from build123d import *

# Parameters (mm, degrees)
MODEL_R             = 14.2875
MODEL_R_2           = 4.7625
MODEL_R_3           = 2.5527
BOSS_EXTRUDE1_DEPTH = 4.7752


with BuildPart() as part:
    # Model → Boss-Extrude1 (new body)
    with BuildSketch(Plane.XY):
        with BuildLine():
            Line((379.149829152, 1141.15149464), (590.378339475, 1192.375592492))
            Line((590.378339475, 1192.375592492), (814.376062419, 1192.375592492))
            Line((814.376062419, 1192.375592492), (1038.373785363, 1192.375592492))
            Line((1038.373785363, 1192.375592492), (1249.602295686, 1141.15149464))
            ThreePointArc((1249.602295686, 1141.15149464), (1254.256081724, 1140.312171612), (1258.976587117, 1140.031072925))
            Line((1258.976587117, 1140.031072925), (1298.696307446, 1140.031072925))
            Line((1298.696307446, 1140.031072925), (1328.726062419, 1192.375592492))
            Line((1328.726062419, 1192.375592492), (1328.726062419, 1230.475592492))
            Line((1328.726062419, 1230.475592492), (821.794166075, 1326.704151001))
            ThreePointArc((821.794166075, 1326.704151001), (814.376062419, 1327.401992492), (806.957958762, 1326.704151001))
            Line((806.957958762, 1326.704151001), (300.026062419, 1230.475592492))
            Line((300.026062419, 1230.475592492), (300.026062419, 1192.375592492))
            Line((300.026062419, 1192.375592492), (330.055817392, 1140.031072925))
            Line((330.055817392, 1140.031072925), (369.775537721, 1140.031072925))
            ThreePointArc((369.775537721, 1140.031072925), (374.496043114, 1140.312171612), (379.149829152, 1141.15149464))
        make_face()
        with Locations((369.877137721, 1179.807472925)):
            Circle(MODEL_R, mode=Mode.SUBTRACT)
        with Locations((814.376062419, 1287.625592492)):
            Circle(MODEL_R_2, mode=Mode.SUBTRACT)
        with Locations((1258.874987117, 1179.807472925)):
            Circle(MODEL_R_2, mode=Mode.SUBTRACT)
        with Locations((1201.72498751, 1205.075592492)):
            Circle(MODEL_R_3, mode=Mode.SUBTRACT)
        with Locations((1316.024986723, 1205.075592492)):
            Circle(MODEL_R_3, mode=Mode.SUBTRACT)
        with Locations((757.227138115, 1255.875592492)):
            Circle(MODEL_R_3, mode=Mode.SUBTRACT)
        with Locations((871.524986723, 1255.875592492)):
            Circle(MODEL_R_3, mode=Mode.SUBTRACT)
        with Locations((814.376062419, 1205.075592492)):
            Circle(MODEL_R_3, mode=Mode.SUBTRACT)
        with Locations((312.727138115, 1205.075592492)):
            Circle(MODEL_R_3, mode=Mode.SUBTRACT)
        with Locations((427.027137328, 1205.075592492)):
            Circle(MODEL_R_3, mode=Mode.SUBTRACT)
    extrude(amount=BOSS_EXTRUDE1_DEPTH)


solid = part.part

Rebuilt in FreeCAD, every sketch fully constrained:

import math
import FreeCAD as App
import Part
import Sketcher
from FreeCAD import Vector
Q = App.Units.Quantity

doc = App.newDocument("Part")
body = doc.addObject("PartDesign::Body", "Body")

# Sketch on XY plane
sketch1 = doc.addObject("Sketcher::SketchObject", "Sketch")
body.addObject(sketch1)
sketch1.AttachmentSupport = (doc.XY_Plane, [""])
sketch1.MapMode = "FlatFace"
sketch1.addGeometry([
    Part.LineSegment(Vector(379.149829, 1141.151495, 0), Vector(590.378339, 1192.375592, 0)),  # 0
    Part.LineSegment(Vector(590.378339, 1192.375592, 0), Vector(1038.373785, 1192.375592, 0)),  # 1
    Part.LineSegment(Vector(1038.373785, 1192.375592, 0), Vector(1249.602296, 1141.151495, 0)),  # 2
    Part.ArcOfCircle(Part.Circle(Vector(1258.976587, 1179.807473, 0), Vector(0, 0, 1), 39.7764), math.radians(-103.631398), math.radians(-90)),  # 3
    Part.LineSegment(Vector(1258.976587, 1140.031073, 0), Vector(1298.696307, 1140.031073, 0)),  # 4
    Part.LineSegment(Vector(1298.696307, 1140.031073, 0), Vector(1328.726062, 1192.375592, 0)),  # 5
    Part.LineSegment(Vector(1328.726062, 1192.375592, 0), Vector(1328.726062, 1230.475592, 0)),  # 6
    Part.LineSegment(Vector(1328.726062, 1230.475592, 0), Vector(821.794166, 1326.704151, 0)),  # 7
    Part.ArcOfCircle(Part.Circle(Vector(814.376062, 1287.625592, 0), Vector(0, 0, 1), 39.7764), math.radians(79.251688), math.radians(100.748312)),  # 8
    Part.LineSegment(Vector(806.957959, 1326.704151, 0), Vector(300.026062, 1230.475592, 0)),  # 9
    Part.LineSegment(Vector(300.026062, 1230.475592, 0), Vector(300.026062, 1192.375592, 0)),  # 10
    Part.LineSegment(Vector(300.026062, 1192.375592, 0), Vector(330.055817, 1140.031073, 0)),  # 11
    Part.LineSegment(Vector(330.055817, 1140.031073, 0), Vector(369.775538, 1140.031073, 0)),  # 12
    Part.ArcOfCircle(Part.Circle(Vector(369.775538, 1179.807473, 0), Vector(0, 0, 1), 39.7764), math.radians(-90), math.radians(-76.368602)),  # 13
    Part.Circle(Vector(369.877138, 1179.807473, 0), Vector(0, 0, 1), 14.2875),  # 14
    Part.Circle(Vector(312.727138, 1205.075592, 0), Vector(0, 0, 1), 2.5527),  # 15
    Part.Circle(Vector(427.027137, 1205.075592, 0), Vector(0, 0, 1), 2.5527),  # 16
    Part.Circle(Vector(1258.874987, 1179.807473, 0), Vector(0, 0, 1), 4.7625),  # 17
    Part.Circle(Vector(814.376062, 1205.075592, 0), Vector(0, 0, 1), 2.5527),  # 18
    Part.Circle(Vector(1201.724988, 1205.075592, 0), Vector(0, 0, 1), 2.5527),  # 19
    Part.Circle(Vector(1316.024987, 1205.075592, 0), Vector(0, 0, 1), 2.5527),  # 20
    Part.Circle(Vector(757.227138, 1255.875592, 0), Vector(0, 0, 1), 2.5527),  # 21
    Part.Circle(Vector(871.524987, 1255.875592, 0), Vector(0, 0, 1), 2.5527),  # 22
    Part.Circle(Vector(814.376062, 1287.625592, 0), Vector(0, 0, 1), 4.7625),  # 23
], False)
sketch1.addConstraint([
    Sketcher.Constraint("Coincident", 0, 2, 1, 1),
    Sketcher.Constraint("Coincident", 1, 2, 2, 1),
    Sketcher.Constraint("Tangent", 2, 2, 3, 1),
    Sketcher.Constraint("Tangent", 3, 2, 4, 1),
    Sketcher.Constraint("Coincident", 4, 2, 5, 1),
    Sketcher.Constraint("Coincident", 5, 2, 6, 1),
    Sketcher.Constraint("Coincident", 6, 2, 7, 1),
    Sketcher.Constraint("Tangent", 7, 2, 8, 1),
    Sketcher.Constraint("Tangent", 8, 2, 9, 1),
    Sketcher.Constraint("Coincident", 9, 2, 10, 1),
    Sketcher.Constraint("Coincident", 10, 2, 11, 1),
    Sketcher.Constraint("Coincident", 11, 2, 12, 1),
    Sketcher.Constraint("Tangent", 12, 2, 13, 1),
    Sketcher.Constraint("Tangent", 13, 2, 0, 1),
    Sketcher.Constraint("Horizontal", 1),
    Sketcher.Constraint("Horizontal", 4),
    Sketcher.Constraint("Vertical", 6),
    Sketcher.Constraint("Vertical", 10),
    Sketcher.Constraint("Horizontal", 12),
    Sketcher.Constraint("Coincident", 23, 3, 8, 3),
    Sketcher.Constraint("Equal", 3, 8),
    Sketcher.Constraint("Equal", 8, 13),
    Sketcher.Constraint("Equal", 15, 16),
    Sketcher.Constraint("Equal", 16, 18),
    Sketcher.Constraint("Equal", 18, 19),
    Sketcher.Constraint("Equal", 19, 20),
    Sketcher.Constraint("Equal", 20, 21),
    Sketcher.Constraint("Equal", 21, 22),
    Sketcher.Constraint("Equal", 17, 23),
    Sketcher.Constraint("Horizontal", 3, 3, 13, 3),
    Sketcher.Constraint("Horizontal", 13, 3, 14, 3),
    Sketcher.Constraint("Horizontal", 15, 3, 16, 3),
    Sketcher.Constraint("Horizontal", 14, 3, 17, 3),
    Sketcher.Constraint("Horizontal", 16, 3, 18, 3),
    Sketcher.Constraint("Horizontal", 18, 3, 19, 3),
    Sketcher.Constraint("Horizontal", 19, 3, 20, 3),
    Sketcher.Constraint("Horizontal", 21, 3, 22, 3),
    Sketcher.Constraint("Horizontal", 1, 2, 5, 2),
    Sketcher.Constraint("Horizontal", 6, 2, 9, 2),
    Sketcher.Constraint("Horizontal", 5, 2, 10, 2),
    Sketcher.Constraint("Vertical", 8, 3, 18, 3),
    Sketcher.Constraint("Equal", 4, 12),
    Sketcher.Constraint("Equal", 0, 2),
    Sketcher.Constraint("Equal", 7, 9),
    Sketcher.Constraint("Equal", 5, 11),
    Sketcher.Constraint("Diameter", 14, Q("1.125 in")),
    Sketcher.Constraint("Diameter", 15, Q("0.201 in")),
    Sketcher.Constraint("Diameter", 17, Q("0.375 in")),
    Sketcher.Constraint("DistanceY", 6, 1, 6, 2, Q("1.5 in")),
    Sketcher.Constraint("Radius", 3, Q("1.566 in")),
    Sketcher.Constraint("DistanceY", 18, 3, 21, 3, Q("2 in")),
    Sketcher.Constraint("DistanceX", 16, 3, 21, 3, Q("13 in")),
    Sketcher.Constraint("DistanceX", 22, 3, 19, 3, Q("13 in")),
    Sketcher.Constraint("DistanceY", 20, 3, 6, 2, Q("1 in")),
    Sketcher.Constraint("DistanceX", 15, 3, 16, 3, Q("4.5 in")),
    Sketcher.Constraint("DistanceX", 19, 3, 20, 3, Q("4.5 in")),
    Sketcher.Constraint("DistanceX", 15, 3, 14, 3, Q("2.25 in")),
    Sketcher.Constraint("DistanceY", 15, 3, 8, 3, Q("3.25 in")),
    Sketcher.Constraint("DistanceX", 19, 3, 17, 3, Q("2.25 in")),
    Sketcher.Constraint("DistanceX", 13, 3, 14, 3, Q("0.004 in")),
    Sketcher.Constraint("DistanceX", 17, 3, 3, 3, Q("0.004 in")),
    Sketcher.Constraint("DistanceX", 4, 1, 4, 2, 39.71972),
    Sketcher.Constraint("DistanceX", 0, 2, 21, 3, 166.848799),
    Sketcher.Constraint("Distance", 0, 217.350849),
    Sketcher.Constraint("Distance", 5, 60.346789),
    Sketcher.Constraint("DistanceX", 1, 1, 1, 2, 447.995446),
    Sketcher.Constraint("DistanceX", -1, 1, 15, 3, 312.727138),
    Sketcher.Constraint("DistanceY", -1, 1, 7, 2, 1326.704151),
])
pad1 = doc.addObject("PartDesign::Pad", "Pad")
body.addObject(pad1)
pad1.Profile = sketch1
pad1.Length = Q("0.188 in")

doc.recompute()
